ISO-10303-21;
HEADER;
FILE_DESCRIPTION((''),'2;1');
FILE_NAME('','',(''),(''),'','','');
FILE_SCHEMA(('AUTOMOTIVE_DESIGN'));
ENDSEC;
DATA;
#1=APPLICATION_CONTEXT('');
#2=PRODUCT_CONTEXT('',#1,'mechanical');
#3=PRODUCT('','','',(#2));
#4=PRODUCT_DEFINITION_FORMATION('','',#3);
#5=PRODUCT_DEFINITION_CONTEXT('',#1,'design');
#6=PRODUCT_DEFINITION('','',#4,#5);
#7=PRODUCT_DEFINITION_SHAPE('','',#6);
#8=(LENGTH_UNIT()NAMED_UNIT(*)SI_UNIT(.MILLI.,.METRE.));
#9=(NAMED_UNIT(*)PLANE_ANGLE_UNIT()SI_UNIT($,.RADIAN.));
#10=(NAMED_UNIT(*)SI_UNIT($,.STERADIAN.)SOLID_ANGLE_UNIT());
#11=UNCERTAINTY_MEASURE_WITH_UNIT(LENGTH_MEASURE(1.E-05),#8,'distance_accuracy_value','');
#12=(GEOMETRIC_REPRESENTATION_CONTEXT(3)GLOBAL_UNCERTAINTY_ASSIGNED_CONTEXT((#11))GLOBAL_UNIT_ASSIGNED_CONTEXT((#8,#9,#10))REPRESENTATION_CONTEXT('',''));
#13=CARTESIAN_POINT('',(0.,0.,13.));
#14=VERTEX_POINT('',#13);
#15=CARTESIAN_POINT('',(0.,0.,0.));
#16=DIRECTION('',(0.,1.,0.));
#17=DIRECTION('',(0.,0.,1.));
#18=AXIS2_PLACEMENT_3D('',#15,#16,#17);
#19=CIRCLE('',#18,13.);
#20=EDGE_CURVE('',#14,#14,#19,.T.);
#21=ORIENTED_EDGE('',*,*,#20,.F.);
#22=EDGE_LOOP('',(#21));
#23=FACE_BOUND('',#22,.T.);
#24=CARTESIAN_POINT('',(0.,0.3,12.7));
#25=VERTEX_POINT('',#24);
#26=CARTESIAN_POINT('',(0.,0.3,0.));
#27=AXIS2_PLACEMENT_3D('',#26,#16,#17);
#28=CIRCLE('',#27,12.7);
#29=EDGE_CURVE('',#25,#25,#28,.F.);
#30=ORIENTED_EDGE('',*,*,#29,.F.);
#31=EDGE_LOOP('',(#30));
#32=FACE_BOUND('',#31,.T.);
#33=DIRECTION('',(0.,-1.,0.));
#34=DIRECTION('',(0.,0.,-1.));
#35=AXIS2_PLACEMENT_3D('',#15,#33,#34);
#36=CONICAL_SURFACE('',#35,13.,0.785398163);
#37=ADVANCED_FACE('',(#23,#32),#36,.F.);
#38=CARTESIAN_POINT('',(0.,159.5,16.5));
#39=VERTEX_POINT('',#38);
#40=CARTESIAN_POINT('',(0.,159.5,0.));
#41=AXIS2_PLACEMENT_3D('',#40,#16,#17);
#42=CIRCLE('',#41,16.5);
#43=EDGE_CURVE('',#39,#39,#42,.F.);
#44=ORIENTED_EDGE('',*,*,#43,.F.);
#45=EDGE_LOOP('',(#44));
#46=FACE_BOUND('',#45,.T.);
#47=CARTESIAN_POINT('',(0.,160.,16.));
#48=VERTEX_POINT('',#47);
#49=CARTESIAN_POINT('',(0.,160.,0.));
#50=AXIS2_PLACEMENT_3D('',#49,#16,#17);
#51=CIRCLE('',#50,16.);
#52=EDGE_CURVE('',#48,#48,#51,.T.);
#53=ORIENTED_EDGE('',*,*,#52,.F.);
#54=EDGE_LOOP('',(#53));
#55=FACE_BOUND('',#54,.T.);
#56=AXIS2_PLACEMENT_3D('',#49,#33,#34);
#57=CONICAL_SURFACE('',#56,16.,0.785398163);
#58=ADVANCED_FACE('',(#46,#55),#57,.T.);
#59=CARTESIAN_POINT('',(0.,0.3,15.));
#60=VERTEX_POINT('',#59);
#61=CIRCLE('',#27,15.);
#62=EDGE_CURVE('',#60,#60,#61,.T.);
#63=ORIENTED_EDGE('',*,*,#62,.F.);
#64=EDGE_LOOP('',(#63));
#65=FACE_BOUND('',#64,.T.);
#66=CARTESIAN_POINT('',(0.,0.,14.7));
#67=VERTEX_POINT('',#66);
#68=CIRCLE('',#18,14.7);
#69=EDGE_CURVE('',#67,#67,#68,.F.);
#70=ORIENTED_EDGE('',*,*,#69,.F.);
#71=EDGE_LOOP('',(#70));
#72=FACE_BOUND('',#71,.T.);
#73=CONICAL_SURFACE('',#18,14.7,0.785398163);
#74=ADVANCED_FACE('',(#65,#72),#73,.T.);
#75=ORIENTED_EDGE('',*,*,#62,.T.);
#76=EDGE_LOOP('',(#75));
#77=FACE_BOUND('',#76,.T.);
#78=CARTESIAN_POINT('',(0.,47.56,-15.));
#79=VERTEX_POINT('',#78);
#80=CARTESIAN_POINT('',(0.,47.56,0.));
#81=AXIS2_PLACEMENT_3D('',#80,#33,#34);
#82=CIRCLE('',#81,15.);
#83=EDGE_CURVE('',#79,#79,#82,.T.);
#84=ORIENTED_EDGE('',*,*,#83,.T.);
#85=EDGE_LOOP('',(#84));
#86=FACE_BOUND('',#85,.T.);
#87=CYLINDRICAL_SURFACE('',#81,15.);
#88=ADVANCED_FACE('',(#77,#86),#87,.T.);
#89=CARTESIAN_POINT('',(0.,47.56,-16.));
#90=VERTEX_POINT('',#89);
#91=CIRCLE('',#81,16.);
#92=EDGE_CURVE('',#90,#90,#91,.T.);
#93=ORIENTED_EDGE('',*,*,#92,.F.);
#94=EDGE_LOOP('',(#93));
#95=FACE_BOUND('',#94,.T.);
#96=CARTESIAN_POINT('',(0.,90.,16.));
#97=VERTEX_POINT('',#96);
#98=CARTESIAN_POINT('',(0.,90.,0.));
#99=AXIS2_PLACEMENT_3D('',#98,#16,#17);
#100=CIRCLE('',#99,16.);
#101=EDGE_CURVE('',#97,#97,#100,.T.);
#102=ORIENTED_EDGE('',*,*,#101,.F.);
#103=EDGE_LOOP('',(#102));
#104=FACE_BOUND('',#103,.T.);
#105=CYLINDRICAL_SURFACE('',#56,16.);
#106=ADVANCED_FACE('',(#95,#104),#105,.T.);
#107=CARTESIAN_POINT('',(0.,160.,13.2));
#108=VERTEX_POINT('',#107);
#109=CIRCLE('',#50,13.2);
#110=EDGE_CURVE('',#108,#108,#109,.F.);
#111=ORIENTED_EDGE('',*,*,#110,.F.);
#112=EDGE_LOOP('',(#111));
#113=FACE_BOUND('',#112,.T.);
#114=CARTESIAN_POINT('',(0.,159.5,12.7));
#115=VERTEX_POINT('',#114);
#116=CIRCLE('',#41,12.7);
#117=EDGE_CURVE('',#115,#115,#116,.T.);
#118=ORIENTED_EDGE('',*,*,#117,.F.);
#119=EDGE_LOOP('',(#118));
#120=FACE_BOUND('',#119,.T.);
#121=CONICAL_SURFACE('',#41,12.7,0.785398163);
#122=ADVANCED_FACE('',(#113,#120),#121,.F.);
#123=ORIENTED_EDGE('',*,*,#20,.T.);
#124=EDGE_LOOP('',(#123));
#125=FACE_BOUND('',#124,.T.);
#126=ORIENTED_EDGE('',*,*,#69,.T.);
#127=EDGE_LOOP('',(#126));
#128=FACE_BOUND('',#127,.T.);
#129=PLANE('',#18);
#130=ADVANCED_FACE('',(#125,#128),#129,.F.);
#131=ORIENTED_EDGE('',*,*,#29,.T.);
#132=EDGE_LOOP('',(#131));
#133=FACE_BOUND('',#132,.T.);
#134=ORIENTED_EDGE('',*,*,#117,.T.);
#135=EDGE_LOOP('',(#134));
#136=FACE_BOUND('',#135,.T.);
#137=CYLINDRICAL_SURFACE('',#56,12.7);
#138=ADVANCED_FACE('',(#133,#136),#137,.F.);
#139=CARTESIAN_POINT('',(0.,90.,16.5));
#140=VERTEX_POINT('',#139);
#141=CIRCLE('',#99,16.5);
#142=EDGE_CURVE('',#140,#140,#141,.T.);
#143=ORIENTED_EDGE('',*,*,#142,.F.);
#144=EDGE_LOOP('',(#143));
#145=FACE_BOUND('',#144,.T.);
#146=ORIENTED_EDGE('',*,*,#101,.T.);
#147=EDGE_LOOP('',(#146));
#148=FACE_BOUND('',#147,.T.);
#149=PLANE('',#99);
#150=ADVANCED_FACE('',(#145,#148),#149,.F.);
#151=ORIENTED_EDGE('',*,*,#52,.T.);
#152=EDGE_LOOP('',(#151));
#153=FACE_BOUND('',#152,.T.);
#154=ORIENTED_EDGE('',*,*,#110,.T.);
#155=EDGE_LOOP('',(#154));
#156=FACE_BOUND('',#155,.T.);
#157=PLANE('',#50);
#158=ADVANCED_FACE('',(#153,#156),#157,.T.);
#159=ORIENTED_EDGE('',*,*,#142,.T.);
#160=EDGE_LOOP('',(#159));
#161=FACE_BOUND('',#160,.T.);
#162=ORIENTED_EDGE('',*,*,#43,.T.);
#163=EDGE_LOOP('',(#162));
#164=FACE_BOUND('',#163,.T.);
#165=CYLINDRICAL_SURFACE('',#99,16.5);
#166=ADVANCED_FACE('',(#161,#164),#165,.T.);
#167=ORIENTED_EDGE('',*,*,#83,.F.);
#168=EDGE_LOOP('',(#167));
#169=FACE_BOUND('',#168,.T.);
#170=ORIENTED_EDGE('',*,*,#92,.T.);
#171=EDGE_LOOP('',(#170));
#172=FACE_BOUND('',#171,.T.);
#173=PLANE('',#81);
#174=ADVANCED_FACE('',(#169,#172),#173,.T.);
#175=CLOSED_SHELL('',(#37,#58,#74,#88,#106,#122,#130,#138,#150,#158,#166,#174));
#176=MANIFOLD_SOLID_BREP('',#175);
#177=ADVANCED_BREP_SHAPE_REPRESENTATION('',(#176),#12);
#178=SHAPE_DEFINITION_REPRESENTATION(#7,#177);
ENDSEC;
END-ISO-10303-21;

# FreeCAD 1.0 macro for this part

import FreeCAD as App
import Part
import Sketcher

V = App.Vector
Q = App.Units.Quantity


def edges_at(feature, points):
    """Names of the edges that pass closest to the given points."""
    edges = feature.Shape.Edges
    near = lambda p: min(range(len(edges)), key=lambda i: edges[i].distToShape(Part.Vertex(*p))[0])
    return sorted({f"Edge{near(p) + 1}" for p in points})

doc = App.newDocument("Part")
body = doc.addObject("PartDesign::Body", "Body")

sketch1 = doc.addObject("Sketcher::SketchObject", "Sketch")
body.addObject(sketch1)
sketch1.AttachmentSupport = (doc.XZ_Plane, [""])
sketch1.MapMode = "FlatFace"
sketch1.addGeometry(Part.Circle(V(0, 0, 0), V(0, 0, 1), 16), False)
sketch1.addGeometry(Part.Circle(V(0, 0, 0), V(0, 0, 1), 13), False)
sketch1.addConstraint(Sketcher.Constraint("Coincident", 0, 3, -1, 1))
sketch1.addConstraint(Sketcher.Constraint("Coincident", 1, 3, -1, 1))
sketch1.addConstraint(Sketcher.Constraint("Diameter", 0, Q("32 mm")))
sketch1.addConstraint(Sketcher.Constraint("Diameter", 1, Q("25.4 mm")))
pad1 = doc.addObject("PartDesign::Pad", "Pad")
body.addObject(pad1)
pad1.Profile = sketch1
pad1.Length = 160
pad1.Reversed = True
doc.recompute()

chamfer = doc.addObject("PartDesign::Chamfer", "Chamfer")
body.addObject(chamfer)
chamfer.Base = (pad1, edges_at(pad1, [(-12.7, 0, 0), (-12.7, 160, 0)]))
chamfer.Size = 0.3

sketch2 = doc.addObject("Sketcher::SketchObject", "Sketch001")
body.addObject(sketch2)
sketch2.AttachmentSupport = (doc.XZ_Plane, [""])
sketch2.MapMode = "FlatFace"
sketch2.addGeometry(Part.Circle(V(0, 0, 0), V(0, 0, 1), 18), False)
sketch2.addGeometry(Part.Circle(V(0, 0, 0), V(0, 0, 1), 15), False)
sketch2.addConstraint(Sketcher.Constraint("Coincident", 0, 3, -1, 1))
sketch2.addConstraint(Sketcher.Constraint("Coincident", 1, 3, -1, 1))
sketch2.addConstraint(Sketcher.Constraint("Diameter", 0, Q("35 mm")))
sketch2.addConstraint(Sketcher.Constraint("Diameter", 1, Q("30 mm")))
pocket1 = doc.addObject("PartDesign::Pocket", "Pocket")
body.addObject(pocket1)
pocket1.Profile = sketch2
pocket1.Length = 47.56
doc.recompute()

chamfer2 = doc.addObject("PartDesign::Chamfer", "Chamfer001")
body.addObject(chamfer2)
chamfer2.Base = (pocket1, edges_at(pocket1, [(-15, 0, 0)]))
chamfer2.Size = 0.3

sketch3 = doc.addObject("Sketcher::SketchObject", "Sketch002")
body.addObject(sketch3)
sketch3.AttachmentSupport = (doc.XZ_Plane, [""])
sketch3.MapMode = "FlatFace"
sketch3.AttachmentOffset = App.Placement(V(0, 0, -160), App.Rotation())
sketch3.addGeometry(Part.Circle(V(0, 0, 0), V(0, 0, 1), 16), False)
sketch3.addGeometry(Part.Circle(V(0, 0, 0), V(0, 0, 1), 13), False)
sketch3.addConstraint(Sketcher.Constraint("Coincident", 0, 3, -1, 1))
sketch3.addConstraint(Sketcher.Constraint("Coincident", 1, 3, -1, 1))
sketch3.addConstraint(Sketcher.Constraint("Diameter", 0, Q("33 mm")))
sketch3.addConstraint(Sketcher.Constraint("Diameter", 1, Q("25.4 mm")))
pad2 = doc.addObject("PartDesign::Pad", "Pad001")
body.addObject(pad2)
pad2.Profile = sketch3
pad2.Length = 70
doc.recompute()

chamfer3 = doc.addObject("PartDesign::Chamfer", "Chamfer002")
body.addObject(chamfer3)
chamfer3.Base = (pad2, edges_at(pad2, [(-16.5, 160, 0), (-12.7, 160, 0)]))
chamfer3.Size = 0.5

doc.recompute()
